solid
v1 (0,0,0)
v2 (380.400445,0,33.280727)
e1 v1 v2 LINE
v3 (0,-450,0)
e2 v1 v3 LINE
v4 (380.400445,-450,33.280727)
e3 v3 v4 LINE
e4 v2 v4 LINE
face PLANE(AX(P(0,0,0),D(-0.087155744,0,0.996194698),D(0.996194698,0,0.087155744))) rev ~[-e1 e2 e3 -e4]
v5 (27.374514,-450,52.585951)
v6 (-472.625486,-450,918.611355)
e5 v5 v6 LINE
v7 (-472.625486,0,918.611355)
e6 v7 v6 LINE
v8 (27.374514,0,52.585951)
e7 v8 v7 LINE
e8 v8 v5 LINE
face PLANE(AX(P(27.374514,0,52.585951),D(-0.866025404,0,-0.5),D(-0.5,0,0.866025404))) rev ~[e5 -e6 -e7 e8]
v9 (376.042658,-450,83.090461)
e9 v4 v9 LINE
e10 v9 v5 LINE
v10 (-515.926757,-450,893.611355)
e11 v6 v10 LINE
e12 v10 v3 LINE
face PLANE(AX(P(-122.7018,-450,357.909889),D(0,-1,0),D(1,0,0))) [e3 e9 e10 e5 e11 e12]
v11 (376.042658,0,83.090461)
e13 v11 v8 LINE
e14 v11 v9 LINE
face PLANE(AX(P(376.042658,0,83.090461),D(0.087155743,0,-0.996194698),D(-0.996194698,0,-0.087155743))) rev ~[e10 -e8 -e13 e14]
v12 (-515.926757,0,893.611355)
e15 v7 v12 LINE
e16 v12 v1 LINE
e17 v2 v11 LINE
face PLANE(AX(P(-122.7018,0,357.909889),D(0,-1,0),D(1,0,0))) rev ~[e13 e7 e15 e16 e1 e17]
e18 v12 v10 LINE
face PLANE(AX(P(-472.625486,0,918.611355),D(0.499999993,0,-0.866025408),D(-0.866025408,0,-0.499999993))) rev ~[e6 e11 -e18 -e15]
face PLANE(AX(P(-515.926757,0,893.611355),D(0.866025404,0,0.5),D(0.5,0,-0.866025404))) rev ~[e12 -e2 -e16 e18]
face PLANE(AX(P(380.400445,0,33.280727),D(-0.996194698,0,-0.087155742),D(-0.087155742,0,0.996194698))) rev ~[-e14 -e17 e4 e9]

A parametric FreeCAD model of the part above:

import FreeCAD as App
import Part
import Sketcher
Q = App.Units.Quantity

doc = App.newDocument("Part")
params = doc.addObject("Spreadsheet::Sheet", "Params")
for row, (alias, value) in enumerate([
    ("sketch1_length", "350 mm"),
    ("sketch1_length2", "1000 mm"),
    ("sketch1_length3", "50.000001 mm"),
    ("pad1_length", "450 mm"),
], start=1):
    params.set(f"A{row}", alias)
    params.set(f"B{row}", "=" + value)
    params.setAlias(f"B{row}", alias)

body = doc.addObject("PartDesign::Body", "Body")

# Sketch on XZ plane
sketch1 = body.newObject("Sketcher::SketchObject", "Sketch")
sketch1.AttachmentSupport = (doc.getObject("XZ_Plane"), [""])
sketch1.MapMode = "FlatFace"
sketch1.addGeometry([
    Part.LineSegment(App.Vector(376, 83, 0), App.Vector(27, 53, 0)),  # 0
    Part.LineSegment(App.Vector(27, 53, 0), App.Vector(-473, 919, 0)),  # 1
    Part.LineSegment(App.Vector(-473, 919, 0), App.Vector(-516, 894, 0)),  # 2
    Part.LineSegment(App.Vector(-516, 894, 0), App.Vector(0, 0, 0)),  # 3
    Part.LineSegment(App.Vector(0, 0, 0), App.Vector(380, 33, 0)),  # 4
    Part.LineSegment(App.Vector(380, 33, 0), App.Vector(376, 83, 0)),  # 5
], False)
sketch1.addConstraint([
    Sketcher.Constraint("Coincident", 0, 2, 1, 1),
    Sketcher.Constraint("Coincident", 1, 2, 2, 1),
    Sketcher.Constraint("Coincident", 2, 2, 3, 1),
    Sketcher.Constraint("Coincident", 3, 2, 4, 1),
    Sketcher.Constraint("Coincident", 4, 2, 5, 1),
    Sketcher.Constraint("Coincident", 5, 2, 0, 1),
    Sketcher.Constraint("Coincident", 3, 2, -1, 1),
    Sketcher.Constraint("Perpendicular", 1, 2),
    Sketcher.Constraint("Perpendicular", 2, 3),
    Sketcher.Constraint("Parallel", 0, 4),
    Sketcher.Constraint("Perpendicular", 4, 5),
    Sketcher.Constraint("Equal", 2, 5),
    Sketcher.Constraint("Angle", 0, Q("-175 deg")),
    Sketcher.Constraint("Angle", 1, Q("120 deg")),
    Sketcher.Constraint("Distance", 0, 350.0),
    Sketcher.Constraint("Distance", 1, 1000.0),
    Sketcher.Constraint("Distance", 2, 50.000001),
])
sketch1.setExpression("Constraints[14]", "Params.sketch1_length")
sketch1.setExpression("Constraints[15]", "Params.sketch1_length2")
sketch1.setExpression("Constraints[16]", "Params.sketch1_length3")
pad1 = body.newObject("PartDesign::Pad", "Pad")
pad1.Profile = sketch1
pad1.setExpression("Length", "Params.pad1_length")

doc.recompute()
